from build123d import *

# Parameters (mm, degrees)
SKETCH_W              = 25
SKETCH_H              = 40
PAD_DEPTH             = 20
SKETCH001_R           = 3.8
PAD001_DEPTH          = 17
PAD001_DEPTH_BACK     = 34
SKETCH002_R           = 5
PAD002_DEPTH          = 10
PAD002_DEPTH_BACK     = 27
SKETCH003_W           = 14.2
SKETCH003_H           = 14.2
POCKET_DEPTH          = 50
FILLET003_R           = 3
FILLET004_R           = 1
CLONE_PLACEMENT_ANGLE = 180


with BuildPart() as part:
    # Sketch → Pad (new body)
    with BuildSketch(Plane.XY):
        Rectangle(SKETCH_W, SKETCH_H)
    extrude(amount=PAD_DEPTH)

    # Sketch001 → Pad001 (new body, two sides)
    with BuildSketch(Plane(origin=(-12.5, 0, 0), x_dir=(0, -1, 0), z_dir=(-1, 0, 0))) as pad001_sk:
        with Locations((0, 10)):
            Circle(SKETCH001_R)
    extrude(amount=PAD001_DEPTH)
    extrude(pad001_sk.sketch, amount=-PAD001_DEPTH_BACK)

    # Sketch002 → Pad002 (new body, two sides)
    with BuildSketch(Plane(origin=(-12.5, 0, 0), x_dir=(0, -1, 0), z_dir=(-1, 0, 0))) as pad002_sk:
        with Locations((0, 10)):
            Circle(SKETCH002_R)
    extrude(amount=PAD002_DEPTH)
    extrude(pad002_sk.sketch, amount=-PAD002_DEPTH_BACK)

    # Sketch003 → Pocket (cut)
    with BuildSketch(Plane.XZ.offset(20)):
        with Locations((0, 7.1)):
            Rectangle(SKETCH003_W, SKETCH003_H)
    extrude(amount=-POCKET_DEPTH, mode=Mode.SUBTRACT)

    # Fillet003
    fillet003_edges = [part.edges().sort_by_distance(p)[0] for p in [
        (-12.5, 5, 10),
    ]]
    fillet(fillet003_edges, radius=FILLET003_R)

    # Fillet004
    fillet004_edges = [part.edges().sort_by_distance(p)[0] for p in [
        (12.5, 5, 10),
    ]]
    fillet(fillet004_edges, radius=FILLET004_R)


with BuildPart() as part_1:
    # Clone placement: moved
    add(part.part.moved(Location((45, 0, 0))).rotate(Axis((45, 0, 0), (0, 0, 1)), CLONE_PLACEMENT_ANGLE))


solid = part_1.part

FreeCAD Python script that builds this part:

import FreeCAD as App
import Part
import Sketcher
from FreeCAD import Vector
Q = App.Units.Quantity


def edges_at(feature, points):
    """Names of the edges that pass closest to the given points."""
    edges = feature.Shape.Edges
    near = lambda p: min(range(len(edges)), key=lambda i: edges[i].distToShape(Part.Vertex(*p))[0])
    return sorted({f"Edge{near(p) + 1}" for p in points})


def add_polygon(sketch, points):
    """Adds a closed chain of lines whose ends are joined by coincident constraints."""
    first, n = sketch.GeometryCount, len(points)
    for a, b in zip(points, points[1:] + points[:1]):
        sketch.addGeometry(Part.LineSegment(App.Vector(*a, 0), App.Vector(*b, 0)), False)
    for i in range(n):
        sketch.addConstraint(Sketcher.Constraint("Coincident", first + i, 2, first + (i + 1) % n, 1))

doc = App.newDocument("Part")
body = doc.addObject("PartDesign::Body", "Body")

sketch1 = body.newObject("Sketcher::SketchObject", "Sketch")
sketch1.AttachmentSupport = (doc.getObject("XY_Plane"), [""])
sketch1.MapMode = "FlatFace"
add_polygon(sketch1, [(-12.5, 20), (-12.5, -20), (12.5, -20), (12.5, 20)])
sketch1.addConstraint(Sketcher.Constraint("Vertical", 0))
sketch1.addConstraint(Sketcher.Constraint("Horizontal", 1))
sketch1.addConstraint(Sketcher.Constraint("Vertical", 2))
sketch1.addConstraint(Sketcher.Constraint("Horizontal", 3))
sketch1.addConstraint(Sketcher.Constraint("Symmetric", 0, 2, 2, 2, -1, 1))
sketch1.addConstraint(Sketcher.Constraint("DistanceX", 1, 1, 1, 2, Q("25 mm")))
sketch1.addConstraint(Sketcher.Constraint("DistanceY", 0, 2, 0, 1, Q("40 mm")))
pad1 = body.newObject("PartDesign::Pad", "Pad")
pad1.Profile = sketch1
pad1.Length = 20

sketch2 = body.newObject("Sketcher::SketchObject", "Sketch001")
sketch2.AttachmentSupport = (doc.getObject("YZ_Plane"), [""])
sketch2.MapMode = "FlatFace"
sketch2.AttachmentOffset = App.Placement(Vector(0, 0, -12.5), App.Rotation())
sketch2.addGeometry(Part.Circle(Vector(0, 10, 0), Vector(0, 0, 1), 3.8), False)
sketch2.addConstraint(Sketcher.Constraint("PointOnObject", 0, 3, -2))
sketch2.addConstraint(Sketcher.Constraint("Diameter", 0, Q("7.6 mm")))
sketch2.addConstraint(Sketcher.Constraint("DistanceY", -1, 1, 0, 3, Q("10 mm")))
pad2 = body.newObject("PartDesign::Pad", "Pad001")
pad2.Profile = sketch2
pad2.Type = "TwoLengths"
pad2.Length = 17
pad2.Length2 = 34
pad2.Reversed = True

sketch3 = body.newObject("Sketcher::SketchObject", "Sketch002")
sketch3.AttachmentSupport = (doc.getObject("YZ_Plane"), [""])
sketch3.MapMode = "FlatFace"
sketch3.AttachmentOffset = App.Placement(Vector(0, 0, -12.5), App.Rotation())
sketch3.addGeometry(Part.Circle(Vector(0, 10, 0), Vector(0, 0, 1), 5), False)
sketch3.addConstraint(Sketcher.Constraint("PointOnObject", 0, 3, -2))
sketch3.addConstraint(Sketcher.Constraint("Diameter", 0, Q("10 mm")))
sketch3.addConstraint(Sketcher.Constraint("DistanceY", -1, 1, 0, 3, Q("10 mm")))
pad3 = body.newObject("PartDesign::Pad", "Pad002")
pad3.Profile = sketch3
pad3.Type = "TwoLengths"
pad3.Length = 10
pad3.Length2 = 27
pad3.Reversed = True

sketch4 = body.newObject("Sketcher::SketchObject", "Sketch003")
sketch4.AttachmentSupport = (doc.getObject("XZ_Plane"), [""])
sketch4.MapMode = "FlatFace"
sketch4.AttachmentOffset = App.Placement(Vector(0, 0, 20), App.Rotation())
add_polygon(sketch4, [(-7.1, 14.2), (-7.1, 0), (7.1, 0), (7.1, 14.2)])
sketch4.addConstraint(Sketcher.Constraint("Vertical", 0))
sketch4.addConstraint(Sketcher.Constraint("Horizontal", 1))
sketch4.addConstraint(Sketcher.Constraint("Vertical", 2))
sketch4.addConstraint(Sketcher.Constraint("Horizontal", 3))
sketch4.addConstraint(Sketcher.Constraint("Symmetric", 0, 2, 1, 2, -1, 1))
sketch4.addConstraint(Sketcher.Constraint("Equal", 3, 0))
sketch4.addConstraint(Sketcher.Constraint("DistanceX", 1, 1, 1, 2, Q("14.2 mm")))
pocket1 = body.newObject("PartDesign::Pocket", "Pocket")
pocket1.Profile = sketch4
pocket1.Length = 50
doc.recompute()

fillet = body.newObject("PartDesign::Fillet", "Fillet")
fillet.Base = (pocket1, edges_at(pocket1, [(-12.5, 5, 10)]))
fillet.Radius = 3
doc.recompute()

fillet2 = body.newObject("PartDesign::Fillet", "Fillet001")
fillet2.Base = (fillet, edges_at(fillet, [(12.5, 5, 10)]))
fillet2.Radius = 1
body2 = doc.addObject("PartDesign::Body", "Body001")
doc.recompute()

body.Placement = App.Placement(Vector(45, 0, 0), App.Rotation(Vector(0, 0, 1), 180))
boolean = body2.newObject("PartDesign::Boolean", "Boolean")
boolean.Type = "Fuse"
boolean.addObjects([body])

doc.recompute()
